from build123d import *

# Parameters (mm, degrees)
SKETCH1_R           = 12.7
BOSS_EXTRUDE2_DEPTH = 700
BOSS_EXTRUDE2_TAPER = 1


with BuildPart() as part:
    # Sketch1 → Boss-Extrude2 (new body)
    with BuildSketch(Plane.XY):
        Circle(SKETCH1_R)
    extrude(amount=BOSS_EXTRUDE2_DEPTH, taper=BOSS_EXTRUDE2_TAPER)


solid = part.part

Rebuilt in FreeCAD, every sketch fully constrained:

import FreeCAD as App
import Part
import Sketcher

doc = App.newDocument("Part")
body = doc.addObject("PartDesign::Body", "Body")

sketch1 = doc.addObject("Sketcher::SketchObject", "Sketch")
body.addObject(sketch1)
sketch1.AttachmentSupport = (doc.XY_Plane, [""])
sketch1.MapMode = "FlatFace"
sketch1.addGeometry(Part.Circle(App.Vector(0, 0, 0), App.Vector(0, 0, 1), 13), False)
sketch1.addConstraint(Sketcher.Constraint("Coincident", 0, 3, -1, 1))
sketch1.addConstraint(Sketcher.Constraint("Diameter", 0, 25.4))
pad1 = doc.addObject("PartDesign::Pad", "Pad")
body.addObject(pad1)
pad1.Profile = sketch1
pad1.Length = 700
pad1.TaperAngle = -1

doc.recompute()
